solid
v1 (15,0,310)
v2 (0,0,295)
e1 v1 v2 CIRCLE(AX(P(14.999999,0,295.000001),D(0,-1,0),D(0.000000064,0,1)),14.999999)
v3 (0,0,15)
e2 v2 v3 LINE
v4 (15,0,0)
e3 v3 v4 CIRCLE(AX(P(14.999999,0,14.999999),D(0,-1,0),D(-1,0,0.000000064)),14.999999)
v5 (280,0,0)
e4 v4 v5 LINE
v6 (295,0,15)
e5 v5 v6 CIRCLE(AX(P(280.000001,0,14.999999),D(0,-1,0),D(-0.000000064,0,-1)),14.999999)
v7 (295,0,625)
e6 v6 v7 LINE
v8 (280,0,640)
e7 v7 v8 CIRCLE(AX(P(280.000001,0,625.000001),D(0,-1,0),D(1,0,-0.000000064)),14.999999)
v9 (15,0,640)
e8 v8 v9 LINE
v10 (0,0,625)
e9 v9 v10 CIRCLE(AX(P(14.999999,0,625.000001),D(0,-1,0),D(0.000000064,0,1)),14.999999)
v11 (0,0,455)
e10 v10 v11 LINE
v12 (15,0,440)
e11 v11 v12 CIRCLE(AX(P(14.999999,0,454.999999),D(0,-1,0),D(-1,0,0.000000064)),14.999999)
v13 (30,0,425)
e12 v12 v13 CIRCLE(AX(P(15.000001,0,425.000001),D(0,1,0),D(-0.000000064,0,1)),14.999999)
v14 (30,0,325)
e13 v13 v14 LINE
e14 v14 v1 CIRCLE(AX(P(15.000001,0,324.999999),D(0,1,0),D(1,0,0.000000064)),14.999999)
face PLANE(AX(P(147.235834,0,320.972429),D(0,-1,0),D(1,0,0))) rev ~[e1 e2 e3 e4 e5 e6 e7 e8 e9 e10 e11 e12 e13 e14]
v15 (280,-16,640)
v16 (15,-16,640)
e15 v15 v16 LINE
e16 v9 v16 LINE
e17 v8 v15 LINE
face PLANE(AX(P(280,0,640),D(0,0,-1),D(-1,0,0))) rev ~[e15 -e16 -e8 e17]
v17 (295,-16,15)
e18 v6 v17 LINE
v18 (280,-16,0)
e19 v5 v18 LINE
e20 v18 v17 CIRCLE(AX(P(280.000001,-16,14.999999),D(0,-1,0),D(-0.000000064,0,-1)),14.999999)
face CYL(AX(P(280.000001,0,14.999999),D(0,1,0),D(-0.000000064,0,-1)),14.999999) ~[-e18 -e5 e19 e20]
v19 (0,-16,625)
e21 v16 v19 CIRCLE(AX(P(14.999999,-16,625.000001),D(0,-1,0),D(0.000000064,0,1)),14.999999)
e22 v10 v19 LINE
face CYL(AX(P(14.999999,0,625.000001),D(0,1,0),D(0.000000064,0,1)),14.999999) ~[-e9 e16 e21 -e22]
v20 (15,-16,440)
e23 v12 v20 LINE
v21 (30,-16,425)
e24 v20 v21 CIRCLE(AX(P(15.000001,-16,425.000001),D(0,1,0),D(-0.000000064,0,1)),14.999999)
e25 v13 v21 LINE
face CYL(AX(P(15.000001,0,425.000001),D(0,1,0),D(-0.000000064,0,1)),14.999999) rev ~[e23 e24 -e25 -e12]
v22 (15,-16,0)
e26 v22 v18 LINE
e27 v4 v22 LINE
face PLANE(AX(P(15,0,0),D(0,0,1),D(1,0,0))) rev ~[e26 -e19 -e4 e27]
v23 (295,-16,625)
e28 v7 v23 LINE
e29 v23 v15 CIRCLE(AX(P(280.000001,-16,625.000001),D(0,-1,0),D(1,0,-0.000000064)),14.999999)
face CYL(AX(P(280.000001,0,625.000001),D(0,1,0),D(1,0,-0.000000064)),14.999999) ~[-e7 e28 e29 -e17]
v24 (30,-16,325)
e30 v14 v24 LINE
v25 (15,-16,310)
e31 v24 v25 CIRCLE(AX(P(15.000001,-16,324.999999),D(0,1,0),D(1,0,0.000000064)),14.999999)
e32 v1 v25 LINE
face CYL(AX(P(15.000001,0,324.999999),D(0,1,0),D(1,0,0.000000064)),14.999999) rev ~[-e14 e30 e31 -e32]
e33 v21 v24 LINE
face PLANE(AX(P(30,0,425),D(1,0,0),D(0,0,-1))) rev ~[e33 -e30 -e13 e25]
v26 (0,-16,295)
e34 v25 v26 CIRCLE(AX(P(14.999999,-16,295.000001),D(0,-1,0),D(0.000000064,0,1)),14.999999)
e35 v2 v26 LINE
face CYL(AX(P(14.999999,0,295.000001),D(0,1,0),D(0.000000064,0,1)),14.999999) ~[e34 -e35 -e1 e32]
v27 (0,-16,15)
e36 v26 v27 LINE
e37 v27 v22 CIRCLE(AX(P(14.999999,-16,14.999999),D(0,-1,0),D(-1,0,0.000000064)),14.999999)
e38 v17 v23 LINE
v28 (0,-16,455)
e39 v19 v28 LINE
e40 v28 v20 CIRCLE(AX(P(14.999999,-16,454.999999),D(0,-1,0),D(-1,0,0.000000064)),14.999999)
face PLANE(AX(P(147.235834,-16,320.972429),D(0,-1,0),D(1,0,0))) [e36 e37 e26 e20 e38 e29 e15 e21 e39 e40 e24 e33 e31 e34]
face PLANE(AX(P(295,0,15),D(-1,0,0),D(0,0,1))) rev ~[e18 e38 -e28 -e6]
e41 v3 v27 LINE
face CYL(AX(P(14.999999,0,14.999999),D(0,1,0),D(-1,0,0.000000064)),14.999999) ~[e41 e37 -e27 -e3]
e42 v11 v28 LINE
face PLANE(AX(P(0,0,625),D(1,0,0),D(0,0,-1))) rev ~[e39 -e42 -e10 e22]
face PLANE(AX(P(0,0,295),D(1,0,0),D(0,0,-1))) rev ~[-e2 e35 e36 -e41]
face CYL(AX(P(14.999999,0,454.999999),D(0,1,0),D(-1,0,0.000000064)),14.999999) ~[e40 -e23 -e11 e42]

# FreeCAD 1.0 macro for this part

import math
import FreeCAD as App
import Part
import Sketcher
Q = App.Units.Quantity

doc = App.newDocument("Part")
body = doc.addObject("PartDesign::Body", "Body")

# Sketch on XZ plane
sketch1 = body.newObject("Sketcher::SketchObject", "Sketch")
sketch1.AttachmentSupport = (doc.getObject("XZ_Plane"), [""])
sketch1.MapMode = "FlatFace"
sketch1.addGeometry([
    Part.LineSegment(App.Vector(280, 640, 0), App.Vector(15, 640, 0)),  # 0
    Part.ArcOfCircle(Part.Circle(App.Vector(15, 625, 0), App.Vector(0, 0, 1), 15), math.radians(90), math.radians(180)),  # 1
    Part.LineSegment(App.Vector(0, 625, 0), App.Vector(0, 455, 0)),  # 2
    Part.ArcOfCircle(Part.Circle(App.Vector(15, 455, 0), App.Vector(0, 0, 1), 15), math.radians(180), math.radians(270)),  # 3
    Part.ArcOfCircle(Part.Circle(App.Vector(15, 425, 0), App.Vector(0, 0, 1), 15), math.radians(0), math.radians(90)),  # 4
    Part.LineSegment(App.Vector(30, 425, 0), App.Vector(30, 325, 0)),  # 5
    Part.ArcOfCircle(Part.Circle(App.Vector(15, 325, 0), App.Vector(0, 0, 1), 15), math.radians(-90), math.radians(0)),  # 6
    Part.ArcOfCircle(Part.Circle(App.Vector(15, 295, 0), App.Vector(0, 0, 1), 15), math.radians(90), math.radians(180)),  # 7
    Part.LineSegment(App.Vector(0, 295, 0), App.Vector(0, 15, 0)),  # 8
    Part.ArcOfCircle(Part.Circle(App.Vector(15, 15, 0), App.Vector(0, 0, 1), 15), math.radians(180), math.radians(270)),  # 9
    Part.LineSegment(App.Vector(15, 0, 0), App.Vector(280, 0, 0)),  # 10
    Part.ArcOfCircle(Part.Circle(App.Vector(280, 15, 0), App.Vector(0, 0, 1), 15), math.radians(-90), math.radians(0)),  # 11
    Part.LineSegment(App.Vector(295, 15, 0), App.Vector(295, 625, 0)),  # 12
    Part.ArcOfCircle(Part.Circle(App.Vector(280, 625, 0), App.Vector(0, 0, 1), 15), math.radians(0), math.radians(90)),  # 13
], False)
sketch1.addConstraint([
    Sketcher.Constraint("Tangent", 0, 2, 1, 1),
    Sketcher.Constraint("Tangent", 1, 2, 2, 1),
    Sketcher.Constraint("Tangent", 2, 2, 3, 1),
    Sketcher.Constraint("Tangent", 3, 2, 4, 2),
    Sketcher.Constraint("Tangent", 4, 1, 5, 1),
    Sketcher.Constraint("Tangent", 5, 2, 6, 2),
    Sketcher.Constraint("Tangent", 6, 1, 7, 1),
    Sketcher.Constraint("Tangent", 7, 2, 8, 1),
    Sketcher.Constraint("Tangent", 8, 2, 9, 1),
    Sketcher.Constraint("Tangent", 9, 2, 10, 1),
    Sketcher.Constraint("Tangent", 10, 2, 11, 1),
    Sketcher.Constraint("Tangent", 11, 2, 12, 1),
    Sketcher.Constraint("Tangent", 12, 2, 13, 1),
    Sketcher.Constraint("Tangent", 13, 2, 0, 1),
    Sketcher.Constraint("Horizontal", 0),
    Sketcher.Constraint("Vertical", 2),
    Sketcher.Constraint("Vertical", 5),
    Sketcher.Constraint("Vertical", 8),
    Sketcher.Constraint("Horizontal", 10),
    Sketcher.Constraint("Vertical", 12),
    Sketcher.Constraint("Equal", 1, 3),
    Sketcher.Constraint("Equal", 3, 4),
    Sketcher.Constraint("Equal", 4, 6),
    Sketcher.Constraint("Equal", 6, 7),
    Sketcher.Constraint("Equal", 7, 9),
    Sketcher.Constraint("Equal", 9, 11),
    Sketcher.Constraint("Equal", 11, 13),
    Sketcher.Constraint("PointOnObject", 1, 2, -2),
    Sketcher.Constraint("PointOnObject", 7, 2, -2),
    Sketcher.Constraint("PointOnObject", 9, 2, -1),
    Sketcher.Constraint("Vertical", 3, 3, 4, 3),
    Sketcher.Constraint("Radius", 1, Q("14.999999 mm")),
    Sketcher.Constraint("DistanceX", 0, 2, 0, 1, Q("265 mm")),
    Sketcher.Constraint("DistanceY", 2, 2, 2, 1, Q("170 mm")),
    Sketcher.Constraint("DistanceY", 5, 2, 5, 1, Q("100 mm")),
    Sketcher.Constraint("DistanceY", 8, 2, 8, 1, Q("280 mm")),
])
pad1 = body.newObject("PartDesign::Pad", "Pad")
pad1.Profile = sketch1
pad1.Length = 16

doc.recompute()
